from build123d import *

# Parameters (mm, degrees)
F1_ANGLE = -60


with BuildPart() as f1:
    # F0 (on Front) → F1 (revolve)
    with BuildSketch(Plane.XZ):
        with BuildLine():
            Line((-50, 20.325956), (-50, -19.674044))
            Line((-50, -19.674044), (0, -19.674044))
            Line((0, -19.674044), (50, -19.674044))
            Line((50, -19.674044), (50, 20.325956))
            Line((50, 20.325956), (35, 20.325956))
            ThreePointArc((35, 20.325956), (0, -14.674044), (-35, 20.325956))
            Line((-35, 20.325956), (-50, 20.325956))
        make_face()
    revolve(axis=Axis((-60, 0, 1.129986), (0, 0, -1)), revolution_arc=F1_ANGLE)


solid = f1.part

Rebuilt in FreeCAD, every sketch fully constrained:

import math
import FreeCAD as App
import Part
import Sketcher
Q = App.Units.Quantity

doc = App.newDocument("Part")
params = doc.addObject("Spreadsheet::Sheet", "Params")
for row, (alias, value) in enumerate([
    ("sketch1_radius", "35 mm"),
    ("sketch1_width", "100 mm"),
    ("sketch1_height", "40 mm"),
    ("revolution_angle", "60 deg"),
], start=1):
    params.set(f"A{row}", alias)
    params.set(f"B{row}", "=" + value)
    params.setAlias(f"B{row}", alias)

body = doc.addObject("PartDesign::Body", "Body")

sketch1 = body.newObject("Sketcher::SketchObject", "Sketch")
sketch1.AttachmentSupport = (doc.getObject("XZ_Plane"), [""])
sketch1.MapMode = "FlatFace"
sketch1.addGeometry([
    Part.LineSegment(App.Vector(-50, 20, 0), App.Vector(-50, -20, 0)),
    Part.LineSegment(App.Vector(-50, -20, 0), App.Vector(50, -20, 0)),
    Part.LineSegment(App.Vector(50, -20, 0), App.Vector(50, 20, 0)),
    Part.LineSegment(App.Vector(50, 20, 0), App.Vector(35, 20, 0)),
    Part.ArcOfCircle(Part.Circle(App.Vector(0, 20, 0), App.Vector(0, 0, 1), 35), math.radians(180), math.radians(360)),
    Part.LineSegment(App.Vector(-35, 20, 0), App.Vector(-50, 20, 0)),
], False)
sketch1.addGeometry(Part.LineSegment(App.Vector(-60, 20, 0), App.Vector(-60, -20, 0)), True)
sketch1.addConstraint([
    Sketcher.Constraint("Coincident", 0, 2, 1, 1),
    Sketcher.Constraint("Coincident", 1, 2, 2, 1),
    Sketcher.Constraint("Coincident", 2, 2, 3, 1),
    Sketcher.Constraint("Coincident", 3, 2, 4, 2),
    Sketcher.Constraint("Coincident", 4, 1, 5, 1),
    Sketcher.Constraint("Coincident", 5, 2, 0, 1),
    Sketcher.Constraint("Vertical", 0),
    Sketcher.Constraint("Horizontal", 1),
    Sketcher.Constraint("Vertical", 2),
    Sketcher.Constraint("Horizontal", 3),
    Sketcher.Constraint("Horizontal", 5),
    Sketcher.Constraint("Vertical", 6),
    Sketcher.Constraint("Symmetric", 3, 2, 4, 1, -2),
    Sketcher.Constraint("Horizontal", 4, 3, 2, 2),
    Sketcher.Constraint("Horizontal", 5, 2, 6, 1),
    Sketcher.Constraint("Horizontal", 1, 2, 6, 2),
    Sketcher.Constraint("Equal", 3, 5),
    Sketcher.Constraint("Radius", 4, Q("35 mm")),
    Sketcher.Constraint("DistanceX", 1, 1, 1, 2, Q("100 mm")),
    Sketcher.Constraint("DistanceY", 0, 2, 0, 1, Q("40 mm")),
    Sketcher.Constraint("DistanceX", 6, 1, -1, 1, Q("60 mm")),
    Sketcher.Constraint("DistanceY", -1, 1, 4, 3, Q("20.325956 mm")),
])
sketch1.setExpression("Constraints[17]", "Params.sketch1_radius")
sketch1.setExpression("Constraints[18]", "Params.sketch1_width")
sketch1.setExpression("Constraints[19]", "Params.sketch1_height")
revolution = body.newObject("PartDesign::Revolution", "Revolution")
revolution.Profile = sketch1
revolution.ReferenceAxis = (sketch1, ["Axis0"])
revolution.setExpression("Angle", "Params.revolution_angle")
revolution.Reversed = True

doc.recompute()
